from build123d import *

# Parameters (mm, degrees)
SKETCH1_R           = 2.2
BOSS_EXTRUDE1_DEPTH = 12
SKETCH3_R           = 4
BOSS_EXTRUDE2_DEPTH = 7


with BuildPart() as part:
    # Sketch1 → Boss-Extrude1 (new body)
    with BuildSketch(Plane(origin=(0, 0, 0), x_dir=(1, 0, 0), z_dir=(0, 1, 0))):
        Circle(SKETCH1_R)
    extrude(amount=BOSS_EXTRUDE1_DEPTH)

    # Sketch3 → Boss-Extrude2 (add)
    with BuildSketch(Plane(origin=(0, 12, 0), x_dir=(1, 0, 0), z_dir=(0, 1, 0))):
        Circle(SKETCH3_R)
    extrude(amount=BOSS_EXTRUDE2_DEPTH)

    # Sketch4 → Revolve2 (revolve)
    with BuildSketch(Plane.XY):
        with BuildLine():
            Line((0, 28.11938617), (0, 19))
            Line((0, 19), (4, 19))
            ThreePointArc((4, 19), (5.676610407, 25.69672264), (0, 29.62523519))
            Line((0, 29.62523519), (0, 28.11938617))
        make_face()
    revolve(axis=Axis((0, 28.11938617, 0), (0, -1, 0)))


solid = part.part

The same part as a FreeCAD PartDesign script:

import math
import FreeCAD as App
import Part
import Sketcher
from FreeCAD import Vector

doc = App.newDocument("Part")
body = doc.addObject("PartDesign::Body", "Body")

sketch1 = body.newObject("Sketcher::SketchObject", "Sketch")
sketch1.AttachmentSupport = (doc.getObject("XZ_Plane"), [""])
sketch1.MapMode = "FlatFace"
sketch1.addGeometry(Part.Circle(Vector(0, 0, 0), Vector(0, 0, 1), 2.2), False)
sketch1.addConstraint([
    Sketcher.Constraint("Coincident", 0, 3, -1, 1),
    Sketcher.Constraint("Diameter", 0, 4.4),
])
pad1 = body.newObject("PartDesign::Pad", "Pad")
pad1.Profile = sketch1
pad1.Length = 12
pad1.Reversed = True

sketch2 = body.newObject("Sketcher::SketchObject", "Sketch001")
sketch2.AttachmentSupport = (doc.getObject("XZ_Plane"), [""])
sketch2.MapMode = "FlatFace"
sketch2.AttachmentOffset = App.Placement(Vector(0, 0, -12), App.Rotation())
sketch2.addGeometry(Part.Circle(Vector(0, 0, 0), Vector(0, 0, 1), 4), False)
sketch2.addConstraint([
    Sketcher.Constraint("Coincident", 0, 3, -1, 1),
    Sketcher.Constraint("Diameter", 0, 8.0),
])
pad2 = body.newObject("PartDesign::Pad", "Pad001")
pad2.Profile = sketch2
pad2.Length = 7
pad2.Reversed = True

sketch3 = body.newObject("Sketcher::SketchObject", "Sketch002")
sketch3.AttachmentSupport = (doc.getObject("XY_Plane"), [""])
sketch3.MapMode = "FlatFace"
sketch3.addGeometry([
    Part.LineSegment(Vector(0, 19, 0), Vector(4, 19, 0)),
    Part.ArcOfCircle(Part.Circle(Vector(0, 23.6, 0), Vector(0, 0, 1), 6.1), math.radians(-49), math.radians(90)),
    Part.LineSegment(Vector(0, 29.6, 0), Vector(0, 19, 0)),
], False)
sketch3.addConstraint([
    Sketcher.Constraint("Coincident", 0, 2, 1, 1),
    Sketcher.Constraint("Coincident", 1, 2, 2, 1),
    Sketcher.Constraint("Coincident", 2, 2, 0, 1),
    Sketcher.Constraint("Horizontal", 0),
    Sketcher.Constraint("Vertical", 2),
    Sketcher.Constraint("PointOnObject", 1, 3, -2),
    Sketcher.Constraint("PointOnObject", 1, 2, -2),
    Sketcher.Constraint("DistanceX", 0, 1, 0, 2, 4.0),
    Sketcher.Constraint("DistanceY", -1, 1, 0, 2, 19.0),
    Sketcher.Constraint("Radius", 1, 6.065542),
])
revolution = body.newObject("PartDesign::Revolution", "Revolution")
revolution.Profile = sketch3
revolution.ReferenceAxis = (sketch3, ["V_Axis"])
revolution.Angle = 360

doc.recompute()
